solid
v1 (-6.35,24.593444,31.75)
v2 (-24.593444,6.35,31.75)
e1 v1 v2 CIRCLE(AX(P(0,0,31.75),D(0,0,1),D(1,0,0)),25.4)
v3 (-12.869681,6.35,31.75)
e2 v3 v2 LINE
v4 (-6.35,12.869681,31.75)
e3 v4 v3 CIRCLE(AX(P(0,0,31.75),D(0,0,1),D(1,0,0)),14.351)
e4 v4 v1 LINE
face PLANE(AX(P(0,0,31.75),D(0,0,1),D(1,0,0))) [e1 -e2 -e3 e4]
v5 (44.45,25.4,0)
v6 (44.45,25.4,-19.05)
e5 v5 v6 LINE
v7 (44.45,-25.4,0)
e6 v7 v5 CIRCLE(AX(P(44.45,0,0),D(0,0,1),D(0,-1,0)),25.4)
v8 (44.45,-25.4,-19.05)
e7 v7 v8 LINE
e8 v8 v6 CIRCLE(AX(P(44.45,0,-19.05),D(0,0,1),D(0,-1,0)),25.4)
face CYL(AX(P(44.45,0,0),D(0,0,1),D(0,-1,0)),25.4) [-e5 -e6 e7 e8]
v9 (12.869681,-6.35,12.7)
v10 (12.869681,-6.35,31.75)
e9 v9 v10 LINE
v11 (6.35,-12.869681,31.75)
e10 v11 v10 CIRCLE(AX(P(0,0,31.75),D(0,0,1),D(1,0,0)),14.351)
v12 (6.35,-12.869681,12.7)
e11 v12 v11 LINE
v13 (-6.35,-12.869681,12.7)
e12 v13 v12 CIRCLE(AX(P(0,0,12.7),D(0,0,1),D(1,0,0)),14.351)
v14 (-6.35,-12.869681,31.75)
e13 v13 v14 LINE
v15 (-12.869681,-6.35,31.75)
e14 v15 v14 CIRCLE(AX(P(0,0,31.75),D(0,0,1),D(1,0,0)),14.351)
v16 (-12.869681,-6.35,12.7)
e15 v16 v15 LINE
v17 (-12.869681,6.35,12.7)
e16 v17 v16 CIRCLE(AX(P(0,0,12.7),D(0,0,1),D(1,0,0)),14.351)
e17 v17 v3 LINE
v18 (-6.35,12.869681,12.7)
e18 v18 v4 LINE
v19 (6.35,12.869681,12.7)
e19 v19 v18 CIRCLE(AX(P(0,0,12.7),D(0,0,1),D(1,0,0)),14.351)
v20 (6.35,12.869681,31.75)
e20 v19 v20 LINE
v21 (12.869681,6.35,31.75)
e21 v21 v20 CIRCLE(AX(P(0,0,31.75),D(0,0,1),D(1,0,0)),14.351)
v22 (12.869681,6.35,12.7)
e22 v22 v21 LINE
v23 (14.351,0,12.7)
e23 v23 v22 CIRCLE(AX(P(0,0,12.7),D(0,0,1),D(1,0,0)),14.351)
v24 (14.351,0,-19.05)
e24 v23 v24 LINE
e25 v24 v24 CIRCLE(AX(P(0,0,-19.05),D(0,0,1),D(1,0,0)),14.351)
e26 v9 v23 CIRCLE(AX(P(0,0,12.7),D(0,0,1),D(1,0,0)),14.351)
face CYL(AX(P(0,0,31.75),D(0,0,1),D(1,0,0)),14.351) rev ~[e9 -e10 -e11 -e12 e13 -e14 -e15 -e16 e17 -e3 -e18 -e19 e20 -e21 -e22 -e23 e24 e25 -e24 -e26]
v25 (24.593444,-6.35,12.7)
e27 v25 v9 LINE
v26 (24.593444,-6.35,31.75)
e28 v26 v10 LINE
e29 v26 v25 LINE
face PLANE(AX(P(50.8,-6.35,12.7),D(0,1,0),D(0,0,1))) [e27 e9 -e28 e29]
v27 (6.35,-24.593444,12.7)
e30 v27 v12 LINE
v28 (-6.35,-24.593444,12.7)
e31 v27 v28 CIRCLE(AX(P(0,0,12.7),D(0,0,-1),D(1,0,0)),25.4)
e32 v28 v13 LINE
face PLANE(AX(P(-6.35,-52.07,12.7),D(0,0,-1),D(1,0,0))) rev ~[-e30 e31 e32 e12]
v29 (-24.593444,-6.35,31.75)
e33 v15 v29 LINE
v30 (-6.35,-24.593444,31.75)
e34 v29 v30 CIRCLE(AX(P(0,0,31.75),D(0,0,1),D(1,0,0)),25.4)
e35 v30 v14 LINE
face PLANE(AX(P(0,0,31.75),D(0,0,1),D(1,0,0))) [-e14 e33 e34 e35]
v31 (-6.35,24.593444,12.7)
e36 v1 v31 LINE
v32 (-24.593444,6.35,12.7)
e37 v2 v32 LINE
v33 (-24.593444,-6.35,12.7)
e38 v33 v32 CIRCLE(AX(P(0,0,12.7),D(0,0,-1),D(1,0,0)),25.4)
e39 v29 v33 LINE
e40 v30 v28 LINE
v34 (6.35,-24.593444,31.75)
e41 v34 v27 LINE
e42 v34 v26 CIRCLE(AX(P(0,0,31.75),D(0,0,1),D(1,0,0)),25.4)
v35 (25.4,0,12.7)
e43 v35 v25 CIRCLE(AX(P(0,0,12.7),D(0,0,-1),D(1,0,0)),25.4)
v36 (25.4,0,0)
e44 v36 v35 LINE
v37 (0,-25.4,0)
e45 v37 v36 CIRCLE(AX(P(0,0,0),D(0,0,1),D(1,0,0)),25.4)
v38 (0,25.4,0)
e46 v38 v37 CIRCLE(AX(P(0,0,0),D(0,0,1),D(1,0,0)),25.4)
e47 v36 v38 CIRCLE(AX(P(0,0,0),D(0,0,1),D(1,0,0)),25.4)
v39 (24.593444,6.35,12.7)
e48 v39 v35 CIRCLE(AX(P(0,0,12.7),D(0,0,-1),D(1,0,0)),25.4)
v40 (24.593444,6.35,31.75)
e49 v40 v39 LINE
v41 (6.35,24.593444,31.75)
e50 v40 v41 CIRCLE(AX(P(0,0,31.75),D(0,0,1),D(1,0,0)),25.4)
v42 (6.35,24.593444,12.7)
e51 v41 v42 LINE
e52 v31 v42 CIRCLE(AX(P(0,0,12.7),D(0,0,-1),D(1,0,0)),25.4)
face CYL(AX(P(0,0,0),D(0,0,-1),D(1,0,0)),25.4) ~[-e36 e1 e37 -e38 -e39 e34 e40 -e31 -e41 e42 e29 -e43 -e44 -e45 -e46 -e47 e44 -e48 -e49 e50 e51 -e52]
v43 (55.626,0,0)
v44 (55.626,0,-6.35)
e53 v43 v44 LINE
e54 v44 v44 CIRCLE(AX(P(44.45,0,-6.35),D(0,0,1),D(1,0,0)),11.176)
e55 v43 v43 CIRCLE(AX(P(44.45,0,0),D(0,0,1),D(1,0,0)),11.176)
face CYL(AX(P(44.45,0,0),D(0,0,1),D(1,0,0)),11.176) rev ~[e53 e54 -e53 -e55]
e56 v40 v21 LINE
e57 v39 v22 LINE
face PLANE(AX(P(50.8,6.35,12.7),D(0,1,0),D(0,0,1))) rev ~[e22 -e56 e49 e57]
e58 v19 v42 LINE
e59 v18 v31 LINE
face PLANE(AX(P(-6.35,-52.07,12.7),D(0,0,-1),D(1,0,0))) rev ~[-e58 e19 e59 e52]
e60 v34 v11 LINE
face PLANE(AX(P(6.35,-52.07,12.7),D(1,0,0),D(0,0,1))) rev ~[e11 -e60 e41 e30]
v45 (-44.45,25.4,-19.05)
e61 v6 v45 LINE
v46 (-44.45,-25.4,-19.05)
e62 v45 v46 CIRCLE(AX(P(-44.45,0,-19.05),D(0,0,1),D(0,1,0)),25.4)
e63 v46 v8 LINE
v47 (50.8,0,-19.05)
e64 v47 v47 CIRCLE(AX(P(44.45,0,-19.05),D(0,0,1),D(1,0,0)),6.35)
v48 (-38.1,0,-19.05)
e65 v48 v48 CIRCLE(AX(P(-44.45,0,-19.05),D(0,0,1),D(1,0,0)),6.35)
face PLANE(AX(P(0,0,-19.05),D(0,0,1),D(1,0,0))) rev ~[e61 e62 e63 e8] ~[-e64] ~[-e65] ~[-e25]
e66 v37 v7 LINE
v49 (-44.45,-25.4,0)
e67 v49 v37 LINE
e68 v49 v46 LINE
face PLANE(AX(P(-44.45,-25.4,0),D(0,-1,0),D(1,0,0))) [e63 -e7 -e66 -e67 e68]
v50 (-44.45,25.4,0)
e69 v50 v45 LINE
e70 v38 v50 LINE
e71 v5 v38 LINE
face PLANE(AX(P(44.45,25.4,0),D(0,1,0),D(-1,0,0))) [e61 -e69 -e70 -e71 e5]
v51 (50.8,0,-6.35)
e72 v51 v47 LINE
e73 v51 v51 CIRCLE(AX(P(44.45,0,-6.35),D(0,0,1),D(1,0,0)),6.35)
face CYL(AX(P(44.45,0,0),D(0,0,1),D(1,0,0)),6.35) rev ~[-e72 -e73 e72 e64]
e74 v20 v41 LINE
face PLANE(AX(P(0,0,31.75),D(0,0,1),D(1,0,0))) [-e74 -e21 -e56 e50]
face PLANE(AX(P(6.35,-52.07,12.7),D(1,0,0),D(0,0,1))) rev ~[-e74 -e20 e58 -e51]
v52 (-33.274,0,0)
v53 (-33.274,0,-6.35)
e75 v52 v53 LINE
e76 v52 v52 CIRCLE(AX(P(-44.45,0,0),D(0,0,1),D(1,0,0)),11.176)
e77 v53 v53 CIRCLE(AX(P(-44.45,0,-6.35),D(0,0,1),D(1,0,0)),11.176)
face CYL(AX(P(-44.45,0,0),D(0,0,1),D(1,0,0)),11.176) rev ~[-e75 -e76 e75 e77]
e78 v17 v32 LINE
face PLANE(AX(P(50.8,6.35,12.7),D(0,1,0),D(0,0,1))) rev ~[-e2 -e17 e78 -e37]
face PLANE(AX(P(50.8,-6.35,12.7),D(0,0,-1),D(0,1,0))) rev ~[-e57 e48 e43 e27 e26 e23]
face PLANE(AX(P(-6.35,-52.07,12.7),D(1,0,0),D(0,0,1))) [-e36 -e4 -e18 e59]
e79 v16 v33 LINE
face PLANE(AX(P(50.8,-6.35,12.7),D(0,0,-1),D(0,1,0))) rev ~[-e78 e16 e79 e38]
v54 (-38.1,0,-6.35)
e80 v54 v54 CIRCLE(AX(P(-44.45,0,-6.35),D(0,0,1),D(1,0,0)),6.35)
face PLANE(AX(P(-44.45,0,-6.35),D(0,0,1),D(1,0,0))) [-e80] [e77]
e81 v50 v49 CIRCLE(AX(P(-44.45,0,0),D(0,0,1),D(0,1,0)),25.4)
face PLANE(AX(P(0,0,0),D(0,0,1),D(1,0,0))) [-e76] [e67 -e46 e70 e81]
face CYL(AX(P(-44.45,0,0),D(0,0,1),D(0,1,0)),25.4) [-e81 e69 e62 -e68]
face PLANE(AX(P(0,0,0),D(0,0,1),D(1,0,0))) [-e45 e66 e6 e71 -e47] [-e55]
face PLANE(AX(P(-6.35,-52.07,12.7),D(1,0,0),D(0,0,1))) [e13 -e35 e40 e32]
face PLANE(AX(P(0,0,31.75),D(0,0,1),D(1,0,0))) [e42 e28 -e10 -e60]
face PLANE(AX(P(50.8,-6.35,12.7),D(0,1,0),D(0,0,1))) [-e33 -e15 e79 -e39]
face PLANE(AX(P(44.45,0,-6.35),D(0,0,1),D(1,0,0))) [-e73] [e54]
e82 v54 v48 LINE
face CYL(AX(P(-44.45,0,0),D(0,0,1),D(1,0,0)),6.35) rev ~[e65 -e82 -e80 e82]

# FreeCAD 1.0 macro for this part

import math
import FreeCAD as App
import Part
import Sketcher

V = App.Vector
Q = App.Units.Quantity


def add_polygon(sketch, points):
    """Adds a closed chain of lines whose ends are joined by coincident constraints."""
    first, n = sketch.GeometryCount, len(points)
    for a, b in zip(points, points[1:] + points[:1]):
        sketch.addGeometry(Part.LineSegment(App.Vector(*a, 0), App.Vector(*b, 0)), False)
    for i in range(n):
        sketch.addConstraint(Sketcher.Constraint("Coincident", first + i, 2, first + (i + 1) % n, 1))

doc = App.newDocument("Part")
params = doc.addObject("Spreadsheet::Sheet", "Params")
for row, (alias, value) in enumerate([
    ("sketch1_radius", "1 in"),
    ("sketch1_width", "3.5 in"),
    ("pad1_length", "0.75 in"),
    ("sketch2_diameter", "0.5 in"),
    ("sketch3_diameter", "0.5 in"),
    ("sketch3_diameter2", "0.88 in"),
    ("pocket2_length", "0.25 in"),
    ("sketch4_diameter", "2 in"),
    ("pad2_length", "1.25 in"),
    ("sketch5_diameter", "1.13 in"),
    ("sketch6_width", "0.5 in"),
    ("sketch6_height", "0.75 in"),
    ("sketch7_width", "0.5 in"),
    ("sketch7_height", "0.75 in"),
], start=1):
    params.set(f"A{row}", alias)
    params.set(f"B{row}", "=" + value)
    params.setAlias(f"B{row}", alias)

body = doc.addObject("PartDesign::Body", "Body")

sketch1 = body.newObject("Sketcher::SketchObject", "Sketch")
sketch1.AttachmentSupport = (doc.getObject("XY_Plane"), [""])
sketch1.MapMode = "FlatFace"
sketch1.addGeometry([
    Part.LineSegment(V(44, 25, 0), V(-44, 25, 0)),
    Part.ArcOfCircle(Part.Circle(V(-44, 0, 0), V(0, 0, 1), 25), math.radians(90), math.radians(270)),
    Part.LineSegment(V(-44, -25, 0), V(44, -25, 0)),
    Part.ArcOfCircle(Part.Circle(V(44, 0, 0), V(0, 0, 1), 25), math.radians(-90), math.radians(90)),
], False)
sketch1.addConstraint([
    Sketcher.Constraint("Tangent", 0, 2, 1, 1),
    Sketcher.Constraint("Tangent", 1, 2, 2, 1),
    Sketcher.Constraint("Tangent", 2, 2, 3, 1),
    Sketcher.Constraint("Tangent", 3, 2, 0, 1),
    Sketcher.Constraint("Horizontal", 0),
    Sketcher.Constraint("Horizontal", 2),
    Sketcher.Constraint("Symmetric", 1, 3, 3, 3, -1, 1),
    Sketcher.Constraint("Radius", 1, Q("1 in")),
    Sketcher.Constraint("DistanceX", 0, 2, 0, 1, Q("3.5 in")),
])
sketch1.setExpression("Constraints[7]", "Params.sketch1_radius")
sketch1.setExpression("Constraints[8]", "Params.sketch1_width")
pad1 = body.newObject("PartDesign::Pad", "Pad")
pad1.Profile = sketch1
pad1.setExpression("Length", "Params.pad1_length")
pad1.Reversed = True

sketch2 = body.newObject("Sketcher::SketchObject", "Sketch001")
sketch2.AttachmentSupport = (doc.getObject("XY_Plane"), [""])
sketch2.MapMode = "FlatFace"
sketch2.addGeometry([
    Part.Circle(V(-44, 0, 0), V(0, 0, 1), 6),
    Part.Circle(V(44, 0, 0), V(0, 0, 1), 6),
], False)
sketch2.addConstraint([
    Sketcher.Constraint("Equal", 0, 1),
    Sketcher.Constraint("Symmetric", 0, 3, 1, 3, -1, 1),
    Sketcher.Constraint("PointOnObject", 0, 3, -1),
    Sketcher.Constraint("Diameter", 0, Q("0.5 in")),
    Sketcher.Constraint("DistanceX", 0, 3, 1, 3, Q("3.5 in")),
])
sketch2.setExpression("Constraints[3]", "Params.sketch2_diameter")
pocket1 = body.newObject("PartDesign::Pocket", "Pocket")
pocket1.Profile = sketch2
pocket1.Type = "ThroughAll"

sketch3 = body.newObject("Sketcher::SketchObject", "Sketch002")
sketch3.AttachmentSupport = (doc.getObject("XY_Plane"), [""])
sketch3.MapMode = "FlatFace"
sketch3.addGeometry([
    Part.Circle(V(-44, 0, 0), V(0, 0, 1), 11),
    Part.Circle(V(-44, 0, 0), V(0, 0, 1), 6),
    Part.Circle(V(44, 0, 0), V(0, 0, 1), 11),
    Part.Circle(V(44, 0, 0), V(0, 0, 1), 6),
], False)
sketch3.addConstraint([
    Sketcher.Constraint("Coincident", 1, 3, 0, 3),
    Sketcher.Constraint("Coincident", 3, 3, 2, 3),
    Sketcher.Constraint("Equal", 0, 2),
    Sketcher.Constraint("Equal", 1, 3),
    Sketcher.Constraint("Symmetric", 0, 3, 2, 3, -1, 1),
    Sketcher.Constraint("PointOnObject", 0, 3, -1),
    Sketcher.Constraint("Diameter", 1, Q("0.5 in")),
    Sketcher.Constraint("Diameter", 0, Q("0.88 in")),
    Sketcher.Constraint("DistanceX", 0, 3, 2, 3, Q("3.5 in")),
])
sketch3.setExpression("Constraints[6]", "Params.sketch3_diameter")
sketch3.setExpression("Constraints[7]", "Params.sketch3_diameter2")
pocket2 = body.newObject("PartDesign::Pocket", "Pocket001")
pocket2.Profile = sketch3
pocket2.setExpression("Length", "Params.pocket2_length")

sketch4 = body.newObject("Sketcher::SketchObject", "Sketch003")
sketch4.AttachmentSupport = (doc.getObject("XY_Plane"), [""])
sketch4.MapMode = "FlatFace"
sketch4.addGeometry(Part.Circle(V(0, 0, 0), V(0, 0, 1), 25), False)
sketch4.addConstraint([
    Sketcher.Constraint("Coincident", 0, 3, -1, 1),
    Sketcher.Constraint("Diameter", 0, Q("2 in")),
])
sketch4.setExpression("Constraints[1]", "Params.sketch4_diameter")
pad2 = body.newObject("PartDesign::Pad", "Pad001")
pad2.Profile = sketch4
pad2.setExpression("Length", "Params.pad2_length")

sketch5 = body.newObject("Sketcher::SketchObject", "Sketch004")
sketch5.AttachmentSupport = (doc.getObject("XY_Plane"), [""])
sketch5.MapMode = "FlatFace"
sketch5.AttachmentOffset = App.Placement(V(0, 0, 1.25 * 25.4), App.Rotation())
sketch5.addGeometry(Part.Circle(V(0, 0, 0), V(0, 0, 1), 14), False)
sketch5.addConstraint([
    Sketcher.Constraint("Coincident", 0, 3, -1, 1),
    Sketcher.Constraint("Diameter", 0, Q("1.13 in")),
])
sketch5.setExpression("Constraints[1]", "Params.sketch5_diameter")
pocket3 = body.newObject("PartDesign::Pocket", "Pocket002")
pocket3.Profile = sketch5
pocket3.Type = "ThroughAll"

sketch6 = body.newObject("Sketcher::SketchObject", "Sketch005")
sketch6.AttachmentSupport = (doc.getObject("YZ_Plane"), [""])
sketch6.MapMode = "FlatFace"
sketch6.AttachmentOffset = App.Placement(V(0, 0, 2 * 25.4), App.Rotation())
add_polygon(sketch6, [(-6, 32), (-6, 13), (6, 13), (6, 32)])
sketch6.addConstraint([
    Sketcher.Constraint("Vertical", 0),
    Sketcher.Constraint("Horizontal", 1),
    Sketcher.Constraint("Vertical", 2),
    Sketcher.Constraint("Horizontal", 3),
    Sketcher.Constraint("DistanceX", 1, 1, 1, 2, Q("0.5 in")),
    Sketcher.Constraint("DistanceY", 0, 2, 0, 1, Q("0.75 in")),
    Sketcher.Constraint("DistanceY", -1, 1, 0, 2, Q("0.5 in")),
    Sketcher.Constraint("DistanceX", 0, 2, -1, 1, Q("0.25 in")),
])
sketch6.setExpression("Constraints[8]", "Params.sketch6_width")
sketch6.setExpression("Constraints[9]", "Params.sketch6_height")
pocket4 = body.newObject("PartDesign::Pocket", "Pocket003")
pocket4.Profile = sketch6
pocket4.Type = "ThroughAll"

sketch7 = body.newObject("Sketcher::SketchObject", "Sketch006")
sketch7.AttachmentSupport = (doc.getObject("XZ_Plane"), [""])
sketch7.MapMode = "FlatFace"
sketch7.AttachmentOffset = App.Placement(V(0, 0, 2.05 * 25.4), App.Rotation())
add_polygon(sketch7, [(-6, 32), (-6, 13), (6, 13), (6, 32)])
sketch7.addConstraint([
    Sketcher.Constraint("Vertical", 0),
    Sketcher.Constraint("Horizontal", 1),
    Sketcher.Constraint("Vertical", 2),
    Sketcher.Constraint("Horizontal", 3),
    Sketcher.Constraint("DistanceX", 1, 1, 1, 2, Q("0.5 in")),
    Sketcher.Constraint("DistanceY", 0, 2, 0, 1, Q("0.75 in")),
    Sketcher.Constraint("DistanceY", -1, 1, 0, 2, Q("0.5 in")),
    Sketcher.Constraint("DistanceX", 0, 2, -1, 1, Q("0.25 in")),
])
sketch7.setExpression("Constraints[8]", "Params.sketch7_width")
sketch7.setExpression("Constraints[9]", "Params.sketch7_height")
pocket5 = body.newObject("PartDesign::Pocket", "Pocket004")
pocket5.Profile = sketch7
pocket5.Type = "ThroughAll"

doc.recompute()
